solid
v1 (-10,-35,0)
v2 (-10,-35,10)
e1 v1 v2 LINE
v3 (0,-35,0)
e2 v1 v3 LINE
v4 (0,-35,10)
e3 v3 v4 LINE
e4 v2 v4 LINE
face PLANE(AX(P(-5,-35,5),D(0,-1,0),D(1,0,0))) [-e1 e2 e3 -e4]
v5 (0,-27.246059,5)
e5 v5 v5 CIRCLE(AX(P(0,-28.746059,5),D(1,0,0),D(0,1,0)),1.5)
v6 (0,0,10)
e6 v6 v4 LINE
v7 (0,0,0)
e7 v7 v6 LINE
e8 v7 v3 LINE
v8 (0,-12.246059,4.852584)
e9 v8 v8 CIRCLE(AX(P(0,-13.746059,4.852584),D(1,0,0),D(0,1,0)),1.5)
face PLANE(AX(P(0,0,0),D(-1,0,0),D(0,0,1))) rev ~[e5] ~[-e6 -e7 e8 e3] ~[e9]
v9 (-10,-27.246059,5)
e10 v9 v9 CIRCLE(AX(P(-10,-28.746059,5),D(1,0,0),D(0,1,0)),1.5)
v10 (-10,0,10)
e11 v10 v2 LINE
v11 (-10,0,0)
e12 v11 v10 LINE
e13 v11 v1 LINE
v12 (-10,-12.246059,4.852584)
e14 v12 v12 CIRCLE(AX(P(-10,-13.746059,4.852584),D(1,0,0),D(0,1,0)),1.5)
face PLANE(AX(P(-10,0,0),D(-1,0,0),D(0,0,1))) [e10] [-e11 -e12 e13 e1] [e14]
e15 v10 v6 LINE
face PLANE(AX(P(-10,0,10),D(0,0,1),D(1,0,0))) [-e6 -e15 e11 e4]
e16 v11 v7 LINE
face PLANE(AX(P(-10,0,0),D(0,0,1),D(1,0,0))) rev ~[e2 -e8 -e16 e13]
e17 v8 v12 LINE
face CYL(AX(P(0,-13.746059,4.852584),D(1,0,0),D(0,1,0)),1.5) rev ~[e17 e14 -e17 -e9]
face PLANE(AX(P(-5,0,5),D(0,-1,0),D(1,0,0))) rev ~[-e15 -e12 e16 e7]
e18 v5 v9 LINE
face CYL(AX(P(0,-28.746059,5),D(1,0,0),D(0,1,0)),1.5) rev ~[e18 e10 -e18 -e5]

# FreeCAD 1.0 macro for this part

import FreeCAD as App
import Part
import Sketcher
Q = App.Units.Quantity


def add_polygon(sketch, points):
    """Adds a closed chain of lines whose ends are joined by coincident constraints."""
    first, n = sketch.GeometryCount, len(points)
    for a, b in zip(points, points[1:] + points[:1]):
        sketch.addGeometry(Part.LineSegment(App.Vector(*a, 0), App.Vector(*b, 0)), False)
    for i in range(n):
        sketch.addConstraint(Sketcher.Constraint("Coincident", first + i, 2, first + (i + 1) % n, 1))

doc = App.newDocument("Part")
params = doc.addObject("Spreadsheet::Sheet", "Params")
for row, (alias, value) in enumerate([
    ("sketch1_width", "10 mm"),
    ("pad1_length", "35 mm"),
    ("sketch2_diameter", "3 mm"),
    ("pocket1_length", "12 mm"),
], start=1):
    params.set(f"A{row}", alias)
    params.set(f"B{row}", "=" + value)
    params.setAlias(f"B{row}", alias)

body = doc.addObject("PartDesign::Body", "Body")

sketch1 = doc.addObject("Sketcher::SketchObject", "Sketch")
body.addObject(sketch1)
sketch1.AttachmentSupport = (doc.XZ_Plane, [""])
sketch1.MapMode = "FlatFace"
add_polygon(sketch1, [(-10, 10), (-10, 0), (0, 0), (0, 10)])
sketch1.addConstraint(Sketcher.Constraint("Vertical", 0))
sketch1.addConstraint(Sketcher.Constraint("Horizontal", 1))
sketch1.addConstraint(Sketcher.Constraint("Vertical", 2))
sketch1.addConstraint(Sketcher.Constraint("Horizontal", 3))
sketch1.addConstraint(Sketcher.Constraint("Coincident", 1, 2, -1, 1))
sketch1.addConstraint(Sketcher.Constraint("Equal", 3, 0))
sketch1.addConstraint(Sketcher.Constraint("DistanceX", 1, 1, 1, 2, Q("10 mm")))
sketch1.setExpression("Constraints[10]", "Params.sketch1_width")
pad1 = doc.addObject("PartDesign::Pad", "Pad")
body.addObject(pad1)
pad1.Profile = sketch1
pad1.setExpression("Length", "Params.pad1_length")

sketch2 = doc.addObject("Sketcher::SketchObject", "Sketch001")
body.addObject(sketch2)
sketch2.AttachmentSupport = (doc.YZ_Plane, [""])
sketch2.MapMode = "FlatFace"
sketch2.addGeometry(Part.Circle(App.Vector(-28.7, 5, 0), App.Vector(0, 0, 1), 1.5), False)
sketch2.addGeometry(Part.Circle(App.Vector(-13.7, 4.9, 0), App.Vector(0, 0, 1), 1.5), False)
sketch2.addConstraint(Sketcher.Constraint("Equal", 0, 1))
sketch2.addConstraint(Sketcher.Constraint("Diameter", 0, Q("3 mm")))
sketch2.addConstraint(Sketcher.Constraint("DistanceY", -1, 1, 0, 3, Q("5 mm")))
sketch2.addConstraint(Sketcher.Constraint("DistanceX", 0, 3, 1, 3, Q("15 mm")))
sketch2.addConstraint(Sketcher.Constraint("DistanceX", 0, 3, -1, 1, Q("28.746059 mm")))
sketch2.addConstraint(Sketcher.Constraint("DistanceY", -1, 1, 1, 3, Q("4.852584 mm")))
sketch2.setExpression("Constraints[1]", "Params.sketch2_diameter")
pocket1 = doc.addObject("PartDesign::Pocket", "Pocket")
body.addObject(pocket1)
pocket1.Profile = sketch2
pocket1.setExpression("Length", "Params.pocket1_length")

doc.recompute()
